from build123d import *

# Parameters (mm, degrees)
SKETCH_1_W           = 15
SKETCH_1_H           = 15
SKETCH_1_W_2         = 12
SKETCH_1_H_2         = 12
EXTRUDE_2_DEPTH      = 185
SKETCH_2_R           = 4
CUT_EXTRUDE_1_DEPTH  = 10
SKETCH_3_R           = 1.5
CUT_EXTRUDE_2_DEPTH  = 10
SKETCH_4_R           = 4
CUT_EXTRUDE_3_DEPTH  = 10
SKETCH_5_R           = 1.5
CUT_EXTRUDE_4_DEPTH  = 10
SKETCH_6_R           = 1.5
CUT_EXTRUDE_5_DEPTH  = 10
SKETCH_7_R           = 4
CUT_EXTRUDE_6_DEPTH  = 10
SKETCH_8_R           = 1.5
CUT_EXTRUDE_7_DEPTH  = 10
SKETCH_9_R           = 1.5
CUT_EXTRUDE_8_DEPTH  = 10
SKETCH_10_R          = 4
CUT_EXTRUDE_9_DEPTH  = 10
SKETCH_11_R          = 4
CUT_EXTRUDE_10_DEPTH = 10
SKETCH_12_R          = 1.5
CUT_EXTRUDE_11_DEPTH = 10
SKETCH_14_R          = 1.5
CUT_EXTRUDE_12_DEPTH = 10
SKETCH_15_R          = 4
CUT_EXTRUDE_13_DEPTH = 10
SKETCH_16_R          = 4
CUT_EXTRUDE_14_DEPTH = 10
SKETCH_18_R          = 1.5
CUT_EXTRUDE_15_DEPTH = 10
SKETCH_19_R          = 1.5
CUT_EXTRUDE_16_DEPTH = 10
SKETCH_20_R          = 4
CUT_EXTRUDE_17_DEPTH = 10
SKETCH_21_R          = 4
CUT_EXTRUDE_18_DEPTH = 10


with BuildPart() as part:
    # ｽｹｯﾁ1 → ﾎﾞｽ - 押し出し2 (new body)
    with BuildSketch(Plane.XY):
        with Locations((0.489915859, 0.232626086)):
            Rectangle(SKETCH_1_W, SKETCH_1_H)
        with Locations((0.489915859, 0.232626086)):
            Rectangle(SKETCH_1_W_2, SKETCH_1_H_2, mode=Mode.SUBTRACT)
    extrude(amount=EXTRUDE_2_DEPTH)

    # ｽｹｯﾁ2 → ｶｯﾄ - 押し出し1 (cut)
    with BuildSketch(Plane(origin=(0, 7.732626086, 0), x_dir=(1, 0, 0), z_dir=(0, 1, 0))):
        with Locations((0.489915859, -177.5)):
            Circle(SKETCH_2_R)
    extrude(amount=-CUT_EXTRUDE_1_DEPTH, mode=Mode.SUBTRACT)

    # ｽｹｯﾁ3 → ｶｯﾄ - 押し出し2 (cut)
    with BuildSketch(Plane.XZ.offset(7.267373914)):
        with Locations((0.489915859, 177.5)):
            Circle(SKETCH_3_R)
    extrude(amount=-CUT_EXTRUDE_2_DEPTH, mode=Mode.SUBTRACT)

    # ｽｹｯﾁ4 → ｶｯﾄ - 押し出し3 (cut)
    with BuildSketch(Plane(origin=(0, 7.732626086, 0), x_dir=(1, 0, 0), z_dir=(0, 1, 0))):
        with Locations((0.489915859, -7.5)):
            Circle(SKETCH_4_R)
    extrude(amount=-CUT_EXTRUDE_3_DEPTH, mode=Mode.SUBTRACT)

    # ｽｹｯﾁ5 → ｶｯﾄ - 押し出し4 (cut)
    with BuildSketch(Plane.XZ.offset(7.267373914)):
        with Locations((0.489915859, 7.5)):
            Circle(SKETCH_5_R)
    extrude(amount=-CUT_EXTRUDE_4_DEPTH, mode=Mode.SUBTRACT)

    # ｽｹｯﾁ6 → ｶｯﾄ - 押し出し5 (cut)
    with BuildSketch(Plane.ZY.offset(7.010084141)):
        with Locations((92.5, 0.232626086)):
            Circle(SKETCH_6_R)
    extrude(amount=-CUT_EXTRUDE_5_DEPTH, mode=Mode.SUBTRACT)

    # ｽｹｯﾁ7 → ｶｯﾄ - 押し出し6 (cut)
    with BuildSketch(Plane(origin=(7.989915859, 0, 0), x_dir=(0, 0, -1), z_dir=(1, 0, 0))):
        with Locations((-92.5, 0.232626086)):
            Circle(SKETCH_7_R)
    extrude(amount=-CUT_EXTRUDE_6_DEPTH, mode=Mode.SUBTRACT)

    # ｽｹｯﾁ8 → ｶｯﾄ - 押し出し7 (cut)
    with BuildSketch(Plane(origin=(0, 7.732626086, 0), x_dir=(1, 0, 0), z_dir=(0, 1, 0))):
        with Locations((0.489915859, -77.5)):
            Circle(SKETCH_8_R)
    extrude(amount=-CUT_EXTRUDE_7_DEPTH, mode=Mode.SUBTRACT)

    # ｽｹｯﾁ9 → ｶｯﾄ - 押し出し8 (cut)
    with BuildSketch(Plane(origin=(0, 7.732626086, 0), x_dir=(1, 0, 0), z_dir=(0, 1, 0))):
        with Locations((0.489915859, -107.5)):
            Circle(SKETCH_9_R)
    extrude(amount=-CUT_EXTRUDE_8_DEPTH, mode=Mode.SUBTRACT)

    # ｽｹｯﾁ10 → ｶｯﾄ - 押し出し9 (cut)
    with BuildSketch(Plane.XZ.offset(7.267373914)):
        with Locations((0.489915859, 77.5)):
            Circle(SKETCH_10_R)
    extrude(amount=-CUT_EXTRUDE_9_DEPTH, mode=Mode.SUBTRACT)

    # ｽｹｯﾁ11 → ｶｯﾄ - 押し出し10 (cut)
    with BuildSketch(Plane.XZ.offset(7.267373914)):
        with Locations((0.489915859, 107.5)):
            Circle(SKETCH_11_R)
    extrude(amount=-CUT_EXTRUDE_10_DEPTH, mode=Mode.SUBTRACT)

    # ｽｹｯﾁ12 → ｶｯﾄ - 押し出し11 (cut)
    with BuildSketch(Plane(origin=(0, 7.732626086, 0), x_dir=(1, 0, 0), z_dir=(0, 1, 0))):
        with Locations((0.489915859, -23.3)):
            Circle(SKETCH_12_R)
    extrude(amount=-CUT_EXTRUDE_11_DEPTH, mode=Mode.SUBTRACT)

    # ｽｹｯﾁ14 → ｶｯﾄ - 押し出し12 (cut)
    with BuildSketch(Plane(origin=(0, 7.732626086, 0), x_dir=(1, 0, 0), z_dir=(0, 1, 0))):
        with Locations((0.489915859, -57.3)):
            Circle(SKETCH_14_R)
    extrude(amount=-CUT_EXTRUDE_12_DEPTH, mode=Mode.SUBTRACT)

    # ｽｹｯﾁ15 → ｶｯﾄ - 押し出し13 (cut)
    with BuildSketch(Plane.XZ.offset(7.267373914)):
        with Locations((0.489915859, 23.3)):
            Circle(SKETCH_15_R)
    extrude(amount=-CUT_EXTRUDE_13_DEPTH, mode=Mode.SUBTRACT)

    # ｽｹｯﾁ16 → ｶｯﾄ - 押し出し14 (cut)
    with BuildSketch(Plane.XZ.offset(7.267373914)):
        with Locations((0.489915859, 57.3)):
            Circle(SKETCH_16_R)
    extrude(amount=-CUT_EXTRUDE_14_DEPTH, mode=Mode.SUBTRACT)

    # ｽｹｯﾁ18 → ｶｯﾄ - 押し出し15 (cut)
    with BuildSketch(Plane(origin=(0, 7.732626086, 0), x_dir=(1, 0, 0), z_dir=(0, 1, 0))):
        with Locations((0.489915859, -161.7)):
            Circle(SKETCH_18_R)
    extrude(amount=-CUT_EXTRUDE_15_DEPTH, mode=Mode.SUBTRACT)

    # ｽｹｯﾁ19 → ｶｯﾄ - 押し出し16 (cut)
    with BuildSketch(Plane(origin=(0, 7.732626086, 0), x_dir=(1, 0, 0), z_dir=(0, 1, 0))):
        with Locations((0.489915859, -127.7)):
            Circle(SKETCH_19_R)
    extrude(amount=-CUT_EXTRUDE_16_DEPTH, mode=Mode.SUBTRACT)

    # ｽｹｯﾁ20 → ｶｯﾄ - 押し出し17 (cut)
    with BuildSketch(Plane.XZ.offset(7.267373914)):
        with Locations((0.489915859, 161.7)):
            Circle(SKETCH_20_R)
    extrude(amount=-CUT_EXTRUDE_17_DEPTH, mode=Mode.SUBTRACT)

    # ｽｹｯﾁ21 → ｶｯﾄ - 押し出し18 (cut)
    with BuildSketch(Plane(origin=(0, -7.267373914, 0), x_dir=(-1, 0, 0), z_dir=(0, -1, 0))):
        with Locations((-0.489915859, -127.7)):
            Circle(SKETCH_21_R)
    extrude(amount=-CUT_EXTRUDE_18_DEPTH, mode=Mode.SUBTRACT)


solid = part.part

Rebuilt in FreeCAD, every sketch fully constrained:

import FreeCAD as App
import Part
import Sketcher


def add_polygon(sketch, points):
    """Adds a closed chain of lines whose ends are joined by coincident constraints."""
    first, n = sketch.GeometryCount, len(points)
    for a, b in zip(points, points[1:] + points[:1]):
        sketch.addGeometry(Part.LineSegment(App.Vector(*a, 0), App.Vector(*b, 0)), False)
    for i in range(n):
        sketch.addConstraint(Sketcher.Constraint("Coincident", first + i, 2, first + (i + 1) % n, 1))

doc = App.newDocument("Part")
params = doc.addObject("Spreadsheet::Sheet", "Params")
for row, (alias, value) in enumerate([
    ("sketch1_width", "15 mm"),
    ("sketch1_width2", "12 mm"),
    ("pad1_length", "185 mm"),
    ("sketch2_diameter", "8 mm"),
    ("pocket1_length", "10 mm"),
    ("sketch3_diameter", "3 mm"),
    ("pocket2_length", "10 mm"),
    ("sketch4_diameter", "8 mm"),
    ("pocket3_length", "10 mm"),
    ("sketch5_diameter", "3 mm"),
    ("pocket4_length", "10 mm"),
    ("sketch6_diameter", "3 mm"),
    ("pocket5_length", "10 mm"),
    ("sketch7_diameter", "8 mm"),
    ("pocket6_length", "10 mm"),
    ("sketch8_diameter", "3 mm"),
    ("pocket7_length", "10 mm"),
    ("sketch9_diameter", "3 mm"),
    ("pocket8_length", "10 mm"),
    ("sketch10_diameter", "8 mm"),
    ("pocket9_length", "10 mm"),
    ("sketch11_diameter", "8 mm"),
    ("pocket10_length", "10 mm"),
    ("sketch12_diameter", "3 mm"),
    ("pocket11_length", "10 mm"),
    ("sketch13_diameter", "3 mm"),
    ("pocket12_length", "10 mm"),
    ("sketch14_diameter", "8 mm"),
    ("pocket13_length", "10 mm"),
    ("sketch15_diameter", "8 mm"),
    ("pocket14_length", "10 mm"),
    ("sketch16_diameter", "3 mm"),
    ("pocket15_length", "10 mm"),
    ("sketch17_diameter", "3 mm"),
    ("pocket16_length", "10 mm"),
    ("sketch18_diameter", "8 mm"),
    ("pocket17_length", "10 mm"),
    ("sketch19_diameter", "8 mm"),
    ("pocket18_length", "10 mm"),
], start=1):
    params.set(f"A{row}", alias)
    params.set(f"B{row}", "=" + value)
    params.setAlias(f"B{row}", alias)

body = doc.addObject("PartDesign::Body", "Body")

# Sketch on XY plane
sketch1 = body.newObject("Sketcher::SketchObject", "Sketch")
sketch1.AttachmentSupport = (doc.getObject("XY_Plane"), [""])
sketch1.MapMode = "FlatFace"
add_polygon(sketch1, [(-7, 8), (-7, -7), (8, -7), (8, 8)])  # lines 0-3
add_polygon(sketch1, [(6, -6), (-6, -6), (-6, 6), (6, 6)])  # lines 4-7
sketch1.addConstraint(Sketcher.Constraint("Vertical", 0))
sketch1.addConstraint(Sketcher.Constraint("Horizontal", 1))
sketch1.addConstraint(Sketcher.Constraint("Vertical", 2))
sketch1.addConstraint(Sketcher.Constraint("Horizontal", 3))
sketch1.addConstraint(Sketcher.Constraint("Horizontal", 4))
sketch1.addConstraint(Sketcher.Constraint("Vertical", 5))
sketch1.addConstraint(Sketcher.Constraint("Horizontal", 6))
sketch1.addConstraint(Sketcher.Constraint("Vertical", 7))
sketch1.addConstraint(Sketcher.Constraint("Equal", 3, 0))
sketch1.addConstraint(Sketcher.Constraint("Equal", 6, 5))
sketch1.addConstraint(Sketcher.Constraint("DistanceX", 1, 1, 1, 2, 15.0))
sketch1.addConstraint(Sketcher.Constraint("DistanceX", 4, 2, 4, 1, 12.0))
sketch1.addConstraint(Sketcher.Constraint("DistanceX", 0, 2, 4, 2, 1.5))
sketch1.addConstraint(Sketcher.Constraint("DistanceY", 0, 2, 4, 2, 1.5))
sketch1.addConstraint(Sketcher.Constraint("DistanceX", 0, 2, -1, 1, 7.010084))
sketch1.addConstraint(Sketcher.Constraint("DistanceY", 0, 2, -1, 1, 7.267374))
sketch1.setExpression("Constraints[18]", "Params.sketch1_width")
sketch1.setExpression("Constraints[19]", "Params.sketch1_width2")
pad1 = body.newObject("PartDesign::Pad", "Pad")
pad1.Profile = sketch1
pad1.setExpression("Length", "Params.pad1_length")

# Sketch on XZ plane
sketch2 = body.newObject("Sketcher::SketchObject", "Sketch001")
sketch2.AttachmentSupport = (doc.getObject("XZ_Plane"), [""])
sketch2.MapMode = "FlatFace"
sketch2.AttachmentOffset = App.Placement(App.Vector(0, 0, -7.732626), App.Rotation())
sketch2.addGeometry(Part.Circle(App.Vector(0.5, 177.5, 0), App.Vector(0, 0, 1), 4), False)
sketch2.addConstraint(Sketcher.Constraint("Diameter", 0, 8.0))
sketch2.addConstraint(Sketcher.Constraint("DistanceY", -1, 1, 0, 3, 177.5))
sketch2.addConstraint(Sketcher.Constraint("DistanceX", -1, 1, 0, 3, 0.489916))
sketch2.setExpression("Constraints[0]", "Params.sketch2_diameter")
pocket1 = body.newObject("PartDesign::Pocket", "Pocket")
pocket1.Profile = sketch2
pocket1.setExpression("Length", "Params.pocket1_length")
pocket1.Reversed = True

# Sketch on XZ plane
sketch3 = body.newObject("Sketcher::SketchObject", "Sketch002")
sketch3.AttachmentSupport = (doc.getObject("XZ_Plane"), [""])
sketch3.MapMode = "FlatFace"
sketch3.AttachmentOffset = App.Placement(App.Vector(0, 0, 7.267374), App.Rotation())
sketch3.addGeometry(Part.Circle(App.Vector(0.5, 177.5, 0), App.Vector(0, 0, 1), 1.5), False)
sketch3.addConstraint(Sketcher.Constraint("Diameter", 0, 3.0))
sketch3.addConstraint(Sketcher.Constraint("DistanceY", -1, 1, 0, 3, 177.5))
sketch3.addConstraint(Sketcher.Constraint("DistanceX", -1, 1, 0, 3, 0.489916))
sketch3.setExpression("Constraints[0]", "Params.sketch3_diameter")
pocket2 = body.newObject("PartDesign::Pocket", "Pocket001")
pocket2.Profile = sketch3
pocket2.setExpression("Length", "Params.pocket2_length")

# Sketch on XZ plane
sketch4 = body.newObject("Sketcher::SketchObject", "Sketch003")
sketch4.AttachmentSupport = (doc.getObject("XZ_Plane"), [""])
sketch4.MapMode = "FlatFace"
sketch4.AttachmentOffset = App.Placement(App.Vector(0, 0, -7.732626), App.Rotation())
sketch4.addGeometry(Part.Circle(App.Vector(0.5, 7.5, 0), App.Vector(0, 0, 1), 4), False)
sketch4.addConstraint(Sketcher.Constraint("Diameter", 0, 8.0))
sketch4.addConstraint(Sketcher.Constraint("DistanceY", -1, 1, 0, 3, 7.5))
sketch4.addConstraint(Sketcher.Constraint("DistanceX", -1, 1, 0, 3, 0.489916))
sketch4.setExpression("Constraints[0]", "Params.sketch4_diameter")
pocket3 = body.newObject("PartDesign::Pocket", "Pocket002")
pocket3.Profile = sketch4
pocket3.setExpression("Length", "Params.pocket3_length")
pocket3.Reversed = True

# Sketch on XZ plane
sketch5 = body.newObject("Sketcher::SketchObject", "Sketch004")
sketch5.AttachmentSupport = (doc.getObject("XZ_Plane"), [""])
sketch5.MapMode = "FlatFace"
sketch5.AttachmentOffset = App.Placement(App.Vector(0, 0, 7.267374), App.Rotation())
sketch5.addGeometry(Part.Circle(App.Vector(0.5, 7.5, 0), App.Vector(0, 0, 1), 1.5), False)
sketch5.addConstraint(Sketcher.Constraint("Diameter", 0, 3.0))
sketch5.addConstraint(Sketcher.Constraint("DistanceY", -1, 1, 0, 3, 7.5))
sketch5.addConstraint(Sketcher.Constraint("DistanceX", -1, 1, 0, 3, 0.489916))
sketch5.setExpression("Constraints[0]", "Params.sketch5_diameter")
pocket4 = body.newObject("PartDesign::Pocket", "Pocket003")
pocket4.Profile = sketch5
pocket4.setExpression("Length", "Params.pocket4_length")

# Sketch on YZ plane
sketch6 = body.newObject("Sketcher::SketchObject", "Sketch005")
sketch6.AttachmentSupport = (doc.getObject("YZ_Plane"), [""])
sketch6.MapMode = "FlatFace"
sketch6.AttachmentOffset = App.Placement(App.Vector(0, 0, -7.010084), App.Rotation())
sketch6.addGeometry(Part.Circle(App.Vector(0.2, 92.5, 0), App.Vector(0, 0, 1), 1.5), False)
sketch6.addConstraint(Sketcher.Constraint("Diameter", 0, 3.0))
sketch6.addConstraint(Sketcher.Constraint("DistanceY", -1, 1, 0, 3, 92.5))
sketch6.addConstraint(Sketcher.Constraint("DistanceX", -1, 1, 0, 3, 0.232626))
sketch6.setExpression("Constraints[0]", "Params.sketch6_diameter")
pocket5 = body.newObject("PartDesign::Pocket", "Pocket004")
pocket5.Profile = sketch6
pocket5.setExpression("Length", "Params.pocket5_length")
pocket5.Reversed = True

# Sketch on YZ plane
sketch7 = body.newObject("Sketcher::SketchObject", "Sketch006")
sketch7.AttachmentSupport = (doc.getObject("YZ_Plane"), [""])
sketch7.MapMode = "FlatFace"
sketch7.AttachmentOffset = App.Placement(App.Vector(0, 0, 7.989916), App.Rotation())
sketch7.addGeometry(Part.Circle(App.Vector(0.2, 92.5, 0), App.Vector(0, 0, 1), 4), False)
sketch7.addConstraint(Sketcher.Constraint("Diameter", 0, 8.0))
sketch7.addConstraint(Sketcher.Constraint("DistanceY", -1, 1, 0, 3, 92.5))
sketch7.addConstraint(Sketcher.Constraint("DistanceX", -1, 1, 0, 3, 0.232626))
sketch7.setExpression("Constraints[0]", "Params.sketch7_diameter")
pocket6 = body.newObject("PartDesign::Pocket", "Pocket005")
pocket6.Profile = sketch7
pocket6.setExpression("Length", "Params.pocket6_length")

# Sketch on XZ plane
sketch8 = body.newObject("Sketcher::SketchObject", "Sketch007")
sketch8.AttachmentSupport = (doc.getObject("XZ_Plane"), [""])
sketch8.MapMode = "FlatFace"
sketch8.AttachmentOffset = App.Placement(App.Vector(0, 0, -7.732626), App.Rotation())
sketch8.addGeometry(Part.Circle(App.Vector(0.5, 77.5, 0), App.Vector(0, 0, 1), 1.5), False)
sketch8.addConstraint(Sketcher.Constraint("Diameter", 0, 3.0))
sketch8.addConstraint(Sketcher.Constraint("DistanceY", -1, 1, 0, 3, 77.5))
sketch8.addConstraint(Sketcher.Constraint("DistanceX", -1, 1, 0, 3, 0.489916))
sketch8.setExpression("Constraints[0]", "Params.sketch8_diameter")
pocket7 = body.newObject("PartDesign::Pocket", "Pocket006")
pocket7.Profile = sketch8
pocket7.setExpression("Length", "Params.pocket7_length")
pocket7.Reversed = True

# Sketch on XZ plane
sketch9 = body.newObject("Sketcher::SketchObject", "Sketch008")
sketch9.AttachmentSupport = (doc.getObject("XZ_Plane"), [""])
sketch9.MapMode = "FlatFace"
sketch9.AttachmentOffset = App.Placement(App.Vector(0, 0, -7.732626), App.Rotation())
sketch9.addGeometry(Part.Circle(App.Vector(0.5, 107.5, 0), App.Vector(0, 0, 1), 1.5), False)
sketch9.addConstraint(Sketcher.Constraint("Diameter", 0, 3.0))
sketch9.addConstraint(Sketcher.Constraint("DistanceY", -1, 1, 0, 3, 107.5))
sketch9.addConstraint(Sketcher.Constraint("DistanceX", -1, 1, 0, 3, 0.489916))
sketch9.setExpression("Constraints[0]", "Params.sketch9_diameter")
pocket8 = body.newObject("PartDesign::Pocket", "Pocket007")
pocket8.Profile = sketch9
pocket8.setExpression("Length", "Params.pocket8_length")
pocket8.Reversed = True

# Sketch on XZ plane
sketch10 = body.newObject("Sketcher::SketchObject", "Sketch009")
sketch10.AttachmentSupport = (doc.getObject("XZ_Plane"), [""])
sketch10.MapMode = "FlatFace"
sketch10.AttachmentOffset = App.Placement(App.Vector(0, 0, 7.267374), App.Rotation())
sketch10.addGeometry(Part.Circle(App.Vector(0.5, 77.5, 0), App.Vector(0, 0, 1), 4), False)
sketch10.addConstraint(Sketcher.Constraint("Diameter", 0, 8.0))
sketch10.addConstraint(Sketcher.Constraint("DistanceY", -1, 1, 0, 3, 77.5))
sketch10.addConstraint(Sketcher.Constraint("DistanceX", -1, 1, 0, 3, 0.489916))
sketch10.setExpression("Constraints[0]", "Params.sketch10_diameter")
pocket9 = body.newObject("PartDesign::Pocket", "Pocket008")
pocket9.Profile = sketch10
pocket9.setExpression("Length", "Params.pocket9_length")

# Sketch on XZ plane
sketch11 = body.newObject("Sketcher::SketchObject", "Sketch010")
sketch11.AttachmentSupport = (doc.getObject("XZ_Plane"), [""])
sketch11.MapMode = "FlatFace"
sketch11.AttachmentOffset = App.Placement(App.Vector(0, 0, 7.267374), App.Rotation())
sketch11.addGeometry(Part.Circle(App.Vector(0.5, 107.5, 0), App.Vector(0, 0, 1), 4), False)
sketch11.addConstraint(Sketcher.Constraint("Diameter", 0, 8.0))
sketch11.addConstraint(Sketcher.Constraint("DistanceY", -1, 1, 0, 3, 107.5))
sketch11.addConstraint(Sketcher.Constraint("DistanceX", -1, 1, 0, 3, 0.489916))
sketch11.setExpression("Constraints[0]", "Params.sketch11_diameter")
pocket10 = body.newObject("PartDesign::Pocket", "Pocket009")
pocket10.Profile = sketch11
pocket10.setExpression("Length", "Params.pocket10_length")

# Sketch on XZ plane
sketch12 = body.newObject("Sketcher::SketchObject", "Sketch011")
sketch12.AttachmentSupport = (doc.getObject("XZ_Plane"), [""])
sketch12.MapMode = "FlatFace"
sketch12.AttachmentOffset = App.Placement(App.Vector(0, 0, -7.732626), App.Rotation())
sketch12.addGeometry(Part.Circle(App.Vector(0.5, 23.3, 0), App.Vector(0, 0, 1), 1.5), False)
sketch12.addConstraint(Sketcher.Constraint("Diameter", 0, 3.0))
sketch12.addConstraint(Sketcher.Constraint("DistanceY", -1, 1, 0, 3, 23.3))
sketch12.addConstraint(Sketcher.Constraint("DistanceX", -1, 1, 0, 3, 0.489916))
sketch12.setExpression("Constraints[0]", "Params.sketch12_diameter")
pocket11 = body.newObject("PartDesign::Pocket", "Pocket010")
pocket11.Profile = sketch12
pocket11.setExpression("Length", "Params.pocket11_length")
pocket11.Reversed = True

# Sketch on XZ plane
sketch13 = body.newObject("Sketcher::SketchObject", "Sketch012")
sketch13.AttachmentSupport = (doc.getObject("XZ_Plane"), [""])
sketch13.MapMode = "FlatFace"
sketch13.AttachmentOffset = App.Placement(App.Vector(0, 0, -7.732626), App.Rotation())
sketch13.addGeometry(Part.Circle(App.Vector(0.5, 57.3, 0), App.Vector(0, 0, 1), 1.5), False)
sketch13.addConstraint(Sketcher.Constraint("Diameter", 0, 3.0))
sketch13.addConstraint(Sketcher.Constraint("DistanceY", -1, 1, 0, 3, 57.3))
sketch13.addConstraint(Sketcher.Constraint("DistanceX", -1, 1, 0, 3, 0.489916))
sketch13.setExpression("Constraints[0]", "Params.sketch13_diameter")
pocket12 = body.newObject("PartDesign::Pocket", "Pocket011")
pocket12.Profile = sketch13
pocket12.setExpression("Length", "Params.pocket12_length")
pocket12.Reversed = True

# Sketch on XZ plane
sketch14 = body.newObject("Sketcher::SketchObject", "Sketch013")
sketch14.AttachmentSupport = (doc.getObject("XZ_Plane"), [""])
sketch14.MapMode = "FlatFace"
sketch14.AttachmentOffset = App.Placement(App.Vector(0, 0, 7.267374), App.Rotation())
sketch14.addGeometry(Part.Circle(App.Vector(0.5, 23.3, 0), App.Vector(0, 0, 1), 4), False)
sketch14.addConstraint(Sketcher.Constraint("Diameter", 0, 8.0))
sketch14.addConstraint(Sketcher.Constraint("DistanceY", -1, 1, 0, 3, 23.3))
sketch14.addConstraint(Sketcher.Constraint("DistanceX", -1, 1, 0, 3, 0.489916))
sketch14.setExpression("Constraints[0]", "Params.sketch14_diameter")
pocket13 = body.newObject("PartDesign::Pocket", "Pocket012")
pocket13.Profile = sketch14
pocket13.setExpression("Length", "Params.pocket13_length")

# Sketch on XZ plane
sketch15 = body.newObject("Sketcher::SketchObject", "Sketch014")
sketch15.AttachmentSupport = (doc.getObject("XZ_Plane"), [""])
sketch15.MapMode = "FlatFace"
sketch15.AttachmentOffset = App.Placement(App.Vector(0, 0, 7.267374), App.Rotation())
sketch15.addGeometry(Part.Circle(App.Vector(0.5, 57.3, 0), App.Vector(0, 0, 1), 4), False)
sketch15.addConstraint(Sketcher.Constraint("Diameter", 0, 8.0))
sketch15.addConstraint(Sketcher.Constraint("DistanceY", -1, 1, 0, 3, 57.3))
sketch15.addConstraint(Sketcher.Constraint("DistanceX", -1, 1, 0, 3, 0.489916))
sketch15.setExpression("Constraints[0]", "Params.sketch15_diameter")
pocket14 = body.newObject("PartDesign::Pocket", "Pocket013")
pocket14.Profile = sketch15
pocket14.setExpression("Length", "Params.pocket14_length")

# Sketch on XZ plane
sketch16 = body.newObject("Sketcher::SketchObject", "Sketch015")
sketch16.AttachmentSupport = (doc.getObject("XZ_Plane"), [""])
sketch16.MapMode = "FlatFace"
sketch16.AttachmentOffset = App.Placement(App.Vector(0, 0, -7.732626), App.Rotation())
sketch16.addGeometry(Part.Circle(App.Vector(0.5, 161.7, 0), App.Vector(0, 0, 1), 1.5), False)
sketch16.addConstraint(Sketcher.Constraint("Diameter", 0, 3.0))
sketch16.addConstraint(Sketcher.Constraint("DistanceY", -1, 1, 0, 3, 161.7))
sketch16.addConstraint(Sketcher.Constraint("DistanceX", -1, 1, 0, 3, 0.489916))
sketch16.setExpression("Constraints[0]", "Params.sketch16_diameter")
pocket15 = body.newObject("PartDesign::Pocket", "Pocket014")
pocket15.Profile = sketch16
pocket15.setExpression("Length", "Params.pocket15_length")
pocket15.Reversed = True

# Sketch on XZ plane
sketch17 = body.newObject("Sketcher::SketchObject", "Sketch016")
sketch17.AttachmentSupport = (doc.getObject("XZ_Plane"), [""])
sketch17.MapMode = "FlatFace"
sketch17.AttachmentOffset = App.Placement(App.Vector(0, 0, -7.732626), App.Rotation())
sketch17.addGeometry(Part.Circle(App.Vector(0.5, 127.7, 0), App.Vector(0, 0, 1), 1.5), False)
sketch17.addConstraint(Sketcher.Constraint("Diameter", 0, 3.0))
sketch17.addConstraint(Sketcher.Constraint("DistanceY", -1, 1, 0, 3, 127.7))
sketch17.addConstraint(Sketcher.Constraint("DistanceX", -1, 1, 0, 3, 0.489916))
sketch17.setExpression("Constraints[0]", "Params.sketch17_diameter")
pocket16 = body.newObject("PartDesign::Pocket", "Pocket015")
pocket16.Profile = sketch17
pocket16.setExpression("Length", "Params.pocket16_length")
pocket16.Reversed = True

# Sketch on XZ plane
sketch18 = body.newObject("Sketcher::SketchObject", "Sketch017")
sketch18.AttachmentSupport = (doc.getObject("XZ_Plane"), [""])
sketch18.MapMode = "FlatFace"
sketch18.AttachmentOffset = App.Placement(App.Vector(0, 0, 7.267374), App.Rotation())
sketch18.addGeometry(Part.Circle(App.Vector(0.5, 161.7, 0), App.Vector(0, 0, 1), 4), False)
sketch18.addConstraint(Sketcher.Constraint("Diameter", 0, 8.0))
sketch18.addConstraint(Sketcher.Constraint("DistanceY", -1, 1, 0, 3, 161.7))
sketch18.addConstraint(Sketcher.Constraint("DistanceX", -1, 1, 0, 3, 0.489916))
sketch18.setExpression("Constraints[0]", "Params.sketch18_diameter")
pocket17 = body.newObject("PartDesign::Pocket", "Pocket016")
pocket17.Profile = sketch18
pocket17.setExpression("Length", "Params.pocket17_length")

# Sketch on XZ plane
sketch19 = body.newObject("Sketcher::SketchObject", "Sketch018")
sketch19.AttachmentSupport = (doc.getObject("XZ_Plane"), [""])
sketch19.MapMode = "FlatFace"
sketch19.AttachmentOffset = App.Placement(App.Vector(0, 0, 7.267374), App.Rotation())
sketch19.addGeometry(Part.Circle(App.Vector(0.5, 127.7, 0), App.Vector(0, 0, 1), 4), False)
sketch19.addConstraint(Sketcher.Constraint("Diameter", 0, 8.0))
sketch19.addConstraint(Sketcher.Constraint("DistanceY", -1, 1, 0, 3, 127.7))
sketch19.addConstraint(Sketcher.Constraint("DistanceX", -1, 1, 0, 3, 0.489916))
sketch19.setExpression("Constraints[0]", "Params.sketch19_diameter")
pocket18 = body.newObject("PartDesign::Pocket", "Pocket017")
pocket18.Profile = sketch19
pocket18.setExpression("Length", "Params.pocket18_length")

doc.recompute()
